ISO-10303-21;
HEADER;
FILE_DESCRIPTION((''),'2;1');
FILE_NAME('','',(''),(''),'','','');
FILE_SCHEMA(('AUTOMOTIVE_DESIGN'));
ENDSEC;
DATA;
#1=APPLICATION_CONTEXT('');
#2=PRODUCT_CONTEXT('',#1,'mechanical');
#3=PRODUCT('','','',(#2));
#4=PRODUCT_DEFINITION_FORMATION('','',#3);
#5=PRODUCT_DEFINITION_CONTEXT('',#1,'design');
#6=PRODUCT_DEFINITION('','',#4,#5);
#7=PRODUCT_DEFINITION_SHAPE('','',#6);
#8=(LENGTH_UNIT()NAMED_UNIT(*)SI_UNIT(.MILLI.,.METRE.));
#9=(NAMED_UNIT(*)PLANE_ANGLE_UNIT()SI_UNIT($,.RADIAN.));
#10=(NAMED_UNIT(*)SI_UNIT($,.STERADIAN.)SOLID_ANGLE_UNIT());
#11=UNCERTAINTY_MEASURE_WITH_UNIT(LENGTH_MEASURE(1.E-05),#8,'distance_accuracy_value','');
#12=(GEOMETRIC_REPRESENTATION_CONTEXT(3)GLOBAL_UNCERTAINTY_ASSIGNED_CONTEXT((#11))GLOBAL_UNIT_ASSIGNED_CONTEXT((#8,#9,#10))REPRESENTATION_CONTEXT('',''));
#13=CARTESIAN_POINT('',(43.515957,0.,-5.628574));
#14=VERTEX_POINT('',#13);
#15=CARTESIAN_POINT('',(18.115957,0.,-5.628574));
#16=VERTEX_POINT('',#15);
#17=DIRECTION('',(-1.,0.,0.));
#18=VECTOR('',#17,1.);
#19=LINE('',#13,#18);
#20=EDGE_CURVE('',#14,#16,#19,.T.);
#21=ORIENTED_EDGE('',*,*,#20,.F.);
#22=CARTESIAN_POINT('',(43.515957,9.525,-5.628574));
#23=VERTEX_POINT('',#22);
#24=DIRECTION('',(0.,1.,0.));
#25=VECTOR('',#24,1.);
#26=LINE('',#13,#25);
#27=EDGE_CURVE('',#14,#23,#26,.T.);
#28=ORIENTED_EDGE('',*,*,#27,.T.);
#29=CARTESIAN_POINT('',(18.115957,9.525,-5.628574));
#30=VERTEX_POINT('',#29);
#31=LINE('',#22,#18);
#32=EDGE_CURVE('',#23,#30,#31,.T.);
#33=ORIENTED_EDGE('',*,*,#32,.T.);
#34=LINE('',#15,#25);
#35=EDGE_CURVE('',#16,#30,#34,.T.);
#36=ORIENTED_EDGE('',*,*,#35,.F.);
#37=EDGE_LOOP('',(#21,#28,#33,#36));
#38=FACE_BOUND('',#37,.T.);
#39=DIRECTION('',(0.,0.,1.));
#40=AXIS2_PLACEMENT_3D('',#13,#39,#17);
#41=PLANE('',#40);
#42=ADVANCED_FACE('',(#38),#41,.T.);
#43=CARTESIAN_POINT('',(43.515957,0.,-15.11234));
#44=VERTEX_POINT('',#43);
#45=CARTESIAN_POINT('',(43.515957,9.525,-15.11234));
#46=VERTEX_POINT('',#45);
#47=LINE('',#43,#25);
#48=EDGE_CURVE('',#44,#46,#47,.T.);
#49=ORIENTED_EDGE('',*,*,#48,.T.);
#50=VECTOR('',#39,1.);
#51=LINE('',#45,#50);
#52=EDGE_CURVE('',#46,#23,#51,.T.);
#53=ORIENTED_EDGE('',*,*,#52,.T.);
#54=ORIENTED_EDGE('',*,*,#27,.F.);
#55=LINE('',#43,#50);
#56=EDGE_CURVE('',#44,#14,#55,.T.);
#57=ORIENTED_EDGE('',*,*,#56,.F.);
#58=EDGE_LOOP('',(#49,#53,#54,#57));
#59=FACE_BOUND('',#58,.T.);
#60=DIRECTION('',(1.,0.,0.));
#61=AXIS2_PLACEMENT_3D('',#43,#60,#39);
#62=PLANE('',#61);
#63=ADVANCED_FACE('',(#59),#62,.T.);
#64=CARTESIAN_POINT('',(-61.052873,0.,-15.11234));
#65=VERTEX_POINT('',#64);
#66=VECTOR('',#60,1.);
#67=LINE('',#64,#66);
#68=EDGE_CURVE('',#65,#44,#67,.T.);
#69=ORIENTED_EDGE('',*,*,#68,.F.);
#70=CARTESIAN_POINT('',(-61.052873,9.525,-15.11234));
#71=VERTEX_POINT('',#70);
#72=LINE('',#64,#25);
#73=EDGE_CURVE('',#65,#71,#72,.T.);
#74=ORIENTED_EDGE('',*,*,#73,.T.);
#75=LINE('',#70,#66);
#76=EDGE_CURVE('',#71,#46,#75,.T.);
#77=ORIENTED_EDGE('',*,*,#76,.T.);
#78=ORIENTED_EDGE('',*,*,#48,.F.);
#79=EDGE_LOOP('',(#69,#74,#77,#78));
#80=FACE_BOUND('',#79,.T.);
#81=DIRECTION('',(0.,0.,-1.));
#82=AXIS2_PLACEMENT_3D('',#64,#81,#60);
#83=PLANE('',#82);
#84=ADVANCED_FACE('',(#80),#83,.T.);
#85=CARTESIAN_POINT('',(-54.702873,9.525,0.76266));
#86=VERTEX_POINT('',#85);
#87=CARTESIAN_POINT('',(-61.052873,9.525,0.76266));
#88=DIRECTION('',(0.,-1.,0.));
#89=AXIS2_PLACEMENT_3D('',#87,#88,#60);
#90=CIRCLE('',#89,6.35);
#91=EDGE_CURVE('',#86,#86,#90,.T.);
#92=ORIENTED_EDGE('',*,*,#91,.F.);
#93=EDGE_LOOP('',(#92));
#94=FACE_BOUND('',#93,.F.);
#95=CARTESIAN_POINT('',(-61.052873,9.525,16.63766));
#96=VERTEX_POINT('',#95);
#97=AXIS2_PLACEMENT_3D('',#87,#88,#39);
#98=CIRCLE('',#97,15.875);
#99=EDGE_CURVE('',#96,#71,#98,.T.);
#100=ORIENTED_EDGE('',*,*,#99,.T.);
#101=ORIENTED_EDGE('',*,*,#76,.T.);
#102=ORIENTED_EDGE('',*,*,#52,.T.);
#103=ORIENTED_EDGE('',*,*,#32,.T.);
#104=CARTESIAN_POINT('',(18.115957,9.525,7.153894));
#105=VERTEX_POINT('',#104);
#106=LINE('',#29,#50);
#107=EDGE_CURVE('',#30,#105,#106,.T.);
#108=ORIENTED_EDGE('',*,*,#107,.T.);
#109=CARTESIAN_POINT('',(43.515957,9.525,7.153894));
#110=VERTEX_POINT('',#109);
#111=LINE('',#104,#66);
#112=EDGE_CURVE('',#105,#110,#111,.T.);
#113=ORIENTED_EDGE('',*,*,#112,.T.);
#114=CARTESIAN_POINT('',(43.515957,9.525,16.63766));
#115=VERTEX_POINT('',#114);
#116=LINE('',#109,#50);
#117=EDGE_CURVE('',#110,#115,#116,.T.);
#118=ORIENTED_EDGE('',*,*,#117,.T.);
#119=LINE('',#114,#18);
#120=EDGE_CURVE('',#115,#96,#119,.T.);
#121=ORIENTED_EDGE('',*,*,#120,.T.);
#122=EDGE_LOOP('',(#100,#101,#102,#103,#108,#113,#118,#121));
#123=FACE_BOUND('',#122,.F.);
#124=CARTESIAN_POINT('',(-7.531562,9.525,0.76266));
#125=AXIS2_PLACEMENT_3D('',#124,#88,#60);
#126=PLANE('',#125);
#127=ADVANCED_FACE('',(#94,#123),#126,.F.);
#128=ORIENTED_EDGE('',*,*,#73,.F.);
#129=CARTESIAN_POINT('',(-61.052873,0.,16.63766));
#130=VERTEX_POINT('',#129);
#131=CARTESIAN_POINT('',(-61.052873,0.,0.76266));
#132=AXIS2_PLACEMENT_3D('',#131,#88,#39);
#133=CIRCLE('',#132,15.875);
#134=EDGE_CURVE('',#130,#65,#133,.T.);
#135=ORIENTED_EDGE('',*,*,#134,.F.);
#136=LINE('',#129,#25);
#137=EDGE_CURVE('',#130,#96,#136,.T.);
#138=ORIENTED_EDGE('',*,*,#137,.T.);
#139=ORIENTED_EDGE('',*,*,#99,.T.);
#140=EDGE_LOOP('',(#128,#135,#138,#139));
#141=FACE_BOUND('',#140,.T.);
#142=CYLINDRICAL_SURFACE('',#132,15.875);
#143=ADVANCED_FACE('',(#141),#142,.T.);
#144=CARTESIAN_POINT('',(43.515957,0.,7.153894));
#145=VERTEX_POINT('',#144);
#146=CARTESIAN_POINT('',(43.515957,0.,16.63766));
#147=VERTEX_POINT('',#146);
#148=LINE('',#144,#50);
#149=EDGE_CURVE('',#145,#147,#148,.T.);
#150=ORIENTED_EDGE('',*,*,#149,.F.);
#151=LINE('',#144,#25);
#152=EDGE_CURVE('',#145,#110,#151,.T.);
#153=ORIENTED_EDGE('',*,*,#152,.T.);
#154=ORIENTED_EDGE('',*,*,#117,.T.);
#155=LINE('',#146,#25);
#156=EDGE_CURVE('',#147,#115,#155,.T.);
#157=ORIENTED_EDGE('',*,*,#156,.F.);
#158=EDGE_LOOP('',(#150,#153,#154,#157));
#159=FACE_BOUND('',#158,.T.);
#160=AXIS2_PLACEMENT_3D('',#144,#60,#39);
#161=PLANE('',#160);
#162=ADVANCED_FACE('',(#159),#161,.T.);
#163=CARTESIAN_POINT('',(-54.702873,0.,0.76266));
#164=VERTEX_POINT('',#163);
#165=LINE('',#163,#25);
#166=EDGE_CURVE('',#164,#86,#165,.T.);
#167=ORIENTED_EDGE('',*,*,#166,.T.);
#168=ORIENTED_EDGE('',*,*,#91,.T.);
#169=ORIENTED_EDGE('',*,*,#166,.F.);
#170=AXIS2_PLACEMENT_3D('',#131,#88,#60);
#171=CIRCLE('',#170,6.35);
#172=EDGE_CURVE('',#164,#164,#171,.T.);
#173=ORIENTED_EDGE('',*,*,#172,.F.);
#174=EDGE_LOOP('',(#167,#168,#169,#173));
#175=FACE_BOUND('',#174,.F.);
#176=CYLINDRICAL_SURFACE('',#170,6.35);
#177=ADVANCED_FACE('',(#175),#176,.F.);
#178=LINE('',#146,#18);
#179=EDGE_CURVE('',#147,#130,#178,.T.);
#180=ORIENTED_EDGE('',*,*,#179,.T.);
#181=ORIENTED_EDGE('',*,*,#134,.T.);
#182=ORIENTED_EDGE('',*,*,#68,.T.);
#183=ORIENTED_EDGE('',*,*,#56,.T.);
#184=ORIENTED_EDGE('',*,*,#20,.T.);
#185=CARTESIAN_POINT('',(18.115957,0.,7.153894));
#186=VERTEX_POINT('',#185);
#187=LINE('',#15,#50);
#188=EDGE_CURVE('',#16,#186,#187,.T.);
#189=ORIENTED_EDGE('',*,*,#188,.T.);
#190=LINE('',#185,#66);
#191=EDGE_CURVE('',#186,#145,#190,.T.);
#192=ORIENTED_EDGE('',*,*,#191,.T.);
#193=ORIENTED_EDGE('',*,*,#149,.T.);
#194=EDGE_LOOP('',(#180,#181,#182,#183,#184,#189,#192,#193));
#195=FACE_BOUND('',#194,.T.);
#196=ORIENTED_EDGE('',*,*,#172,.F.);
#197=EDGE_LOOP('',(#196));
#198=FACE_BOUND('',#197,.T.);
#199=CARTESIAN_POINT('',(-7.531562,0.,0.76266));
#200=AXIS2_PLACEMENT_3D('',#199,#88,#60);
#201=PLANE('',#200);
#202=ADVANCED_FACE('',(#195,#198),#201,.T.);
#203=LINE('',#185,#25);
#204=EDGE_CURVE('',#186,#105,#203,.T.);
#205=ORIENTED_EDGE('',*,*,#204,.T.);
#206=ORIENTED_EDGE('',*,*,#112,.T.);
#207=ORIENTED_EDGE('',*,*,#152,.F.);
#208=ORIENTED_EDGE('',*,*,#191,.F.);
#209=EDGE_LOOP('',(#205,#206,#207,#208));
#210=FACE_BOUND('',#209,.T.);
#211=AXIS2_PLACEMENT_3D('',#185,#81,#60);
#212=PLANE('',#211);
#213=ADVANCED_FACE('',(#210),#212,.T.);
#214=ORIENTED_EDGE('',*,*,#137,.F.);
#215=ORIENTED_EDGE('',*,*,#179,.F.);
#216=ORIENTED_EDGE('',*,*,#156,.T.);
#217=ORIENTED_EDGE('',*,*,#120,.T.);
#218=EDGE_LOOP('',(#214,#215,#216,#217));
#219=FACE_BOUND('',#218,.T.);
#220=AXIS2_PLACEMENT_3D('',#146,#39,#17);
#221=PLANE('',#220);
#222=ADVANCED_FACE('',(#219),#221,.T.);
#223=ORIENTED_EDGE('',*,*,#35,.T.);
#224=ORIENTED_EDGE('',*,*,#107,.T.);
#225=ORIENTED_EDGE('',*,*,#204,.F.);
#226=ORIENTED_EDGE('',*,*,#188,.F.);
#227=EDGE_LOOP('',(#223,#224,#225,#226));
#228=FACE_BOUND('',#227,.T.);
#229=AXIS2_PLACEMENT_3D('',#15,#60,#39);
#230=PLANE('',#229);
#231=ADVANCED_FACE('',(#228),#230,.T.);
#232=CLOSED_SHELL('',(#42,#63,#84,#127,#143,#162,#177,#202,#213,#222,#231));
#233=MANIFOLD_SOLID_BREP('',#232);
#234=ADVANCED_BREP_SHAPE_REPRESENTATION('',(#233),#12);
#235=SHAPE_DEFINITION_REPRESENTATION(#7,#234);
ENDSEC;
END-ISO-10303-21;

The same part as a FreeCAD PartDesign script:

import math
import FreeCAD as App
import Part
import Sketcher
Q = App.Units.Quantity

doc = App.newDocument("Part")
body = doc.addObject("PartDesign::Body", "Body")

sketch1 = body.newObject("Sketcher::SketchObject", "Sketch")
sketch1.AttachmentSupport = (doc.getObject("XZ_Plane"), [""])
sketch1.MapMode = "FlatFace"
sketch1.addGeometry(Part.ArcOfCircle(Part.Circle(App.Vector(-61.052873, 0.76266, 0), App.Vector(0, 0, 1), 15.875), math.radians(90), math.radians(270)), False)
sketch1.addGeometry(Part.LineSegment(App.Vector(-61.052873, -15.11234, 0), App.Vector(43.515957, -15.11234, 0)), False)
sketch1.addGeometry(Part.LineSegment(App.Vector(43.515957, -15.11234, 0), App.Vector(43.515957, -5.628574, 0)), False)
sketch1.addGeometry(Part.LineSegment(App.Vector(43.515957, -5.628574, 0), App.Vector(18.115957, -5.628574, 0)), False)
sketch1.addGeometry(Part.LineSegment(App.Vector(18.115957, -5.628574, 0), App.Vector(18.115957, 7.153894, 0)), False)
sketch1.addGeometry(Part.LineSegment(App.Vector(18.115957, 7.153894, 0), App.Vector(43.515957, 7.153894, 0)), False)
sketch1.addGeometry(Part.LineSegment(App.Vector(43.515957, 7.153894, 0), App.Vector(43.515957, 16.63766, 0)), False)
sketch1.addGeometry(Part.LineSegment(App.Vector(43.515957, 16.63766, 0), App.Vector(-61.052873, 16.63766, 0)), False)
sketch1.addGeometry(Part.Circle(App.Vector(-61.052873, 0.76266, 0), App.Vector(0, 0, 1), 6.35), False)
sketch1.addConstraint(Sketcher.Constraint("Tangent", 0, 2, 1, 1))
sketch1.addConstraint(Sketcher.Constraint("Coincident", 1, 2, 2, 1))
sketch1.addConstraint(Sketcher.Constraint("Coincident", 2, 2, 3, 1))
sketch1.addConstraint(Sketcher.Constraint("Coincident", 3, 2, 4, 1))
sketch1.addConstraint(Sketcher.Constraint("Coincident", 4, 2, 5, 1))
sketch1.addConstraint(Sketcher.Constraint("Coincident", 5, 2, 6, 1))
sketch1.addConstraint(Sketcher.Constraint("Coincident", 6, 2, 7, 1))
sketch1.addConstraint(Sketcher.Constraint("Tangent", 7, 2, 0, 1))
sketch1.addConstraint(Sketcher.Constraint("Horizontal", 1))
sketch1.addConstraint(Sketcher.Constraint("Vertical", 2))
sketch1.addConstraint(Sketcher.Constraint("Horizontal", 3))
sketch1.addConstraint(Sketcher.Constraint("Vertical", 4))
sketch1.addConstraint(Sketcher.Constraint("Horizontal", 5))
sketch1.addConstraint(Sketcher.Constraint("Vertical", 6))
sketch1.addConstraint(Sketcher.Constraint("Horizontal", 7))
sketch1.addConstraint(Sketcher.Constraint("Coincident", 8, 3, 0, 3))
sketch1.addConstraint(Sketcher.Constraint("Vertical", 2, 2, 5, 2))
sketch1.addConstraint(Sketcher.Constraint("Equal", 2, 6))
sketch1.addConstraint(Sketcher.Constraint("Diameter", 8, Q("0.5 in")))
sketch1.addConstraint(Sketcher.Constraint("DistanceX", 3, 2, 3, 1, Q("1 in")))
sketch1.addConstraint(Sketcher.Constraint("Radius", 0, Q("0.625 in")))
sketch1.addConstraint(Sketcher.Constraint("DistanceX", 1, 1, 1, 2, Q("104.56883 mm")))
sketch1.addConstraint(Sketcher.Constraint("DistanceY", 4, 1, 4, 2, Q("12.782468 mm")))
sketch1.addConstraint(Sketcher.Constraint("DistanceY", -1, 1, 0, 3, Q("0.76266 mm")))
sketch1.addConstraint(Sketcher.Constraint("DistanceX", 0, 3, -1, 1, Q("61.052873 mm")))
pad1 = body.newObject("PartDesign::Pad", "Pad")
pad1.Profile = sketch1
pad1.Length = Q("0.375 in")
pad1.Reversed = True

doc.recompute()
